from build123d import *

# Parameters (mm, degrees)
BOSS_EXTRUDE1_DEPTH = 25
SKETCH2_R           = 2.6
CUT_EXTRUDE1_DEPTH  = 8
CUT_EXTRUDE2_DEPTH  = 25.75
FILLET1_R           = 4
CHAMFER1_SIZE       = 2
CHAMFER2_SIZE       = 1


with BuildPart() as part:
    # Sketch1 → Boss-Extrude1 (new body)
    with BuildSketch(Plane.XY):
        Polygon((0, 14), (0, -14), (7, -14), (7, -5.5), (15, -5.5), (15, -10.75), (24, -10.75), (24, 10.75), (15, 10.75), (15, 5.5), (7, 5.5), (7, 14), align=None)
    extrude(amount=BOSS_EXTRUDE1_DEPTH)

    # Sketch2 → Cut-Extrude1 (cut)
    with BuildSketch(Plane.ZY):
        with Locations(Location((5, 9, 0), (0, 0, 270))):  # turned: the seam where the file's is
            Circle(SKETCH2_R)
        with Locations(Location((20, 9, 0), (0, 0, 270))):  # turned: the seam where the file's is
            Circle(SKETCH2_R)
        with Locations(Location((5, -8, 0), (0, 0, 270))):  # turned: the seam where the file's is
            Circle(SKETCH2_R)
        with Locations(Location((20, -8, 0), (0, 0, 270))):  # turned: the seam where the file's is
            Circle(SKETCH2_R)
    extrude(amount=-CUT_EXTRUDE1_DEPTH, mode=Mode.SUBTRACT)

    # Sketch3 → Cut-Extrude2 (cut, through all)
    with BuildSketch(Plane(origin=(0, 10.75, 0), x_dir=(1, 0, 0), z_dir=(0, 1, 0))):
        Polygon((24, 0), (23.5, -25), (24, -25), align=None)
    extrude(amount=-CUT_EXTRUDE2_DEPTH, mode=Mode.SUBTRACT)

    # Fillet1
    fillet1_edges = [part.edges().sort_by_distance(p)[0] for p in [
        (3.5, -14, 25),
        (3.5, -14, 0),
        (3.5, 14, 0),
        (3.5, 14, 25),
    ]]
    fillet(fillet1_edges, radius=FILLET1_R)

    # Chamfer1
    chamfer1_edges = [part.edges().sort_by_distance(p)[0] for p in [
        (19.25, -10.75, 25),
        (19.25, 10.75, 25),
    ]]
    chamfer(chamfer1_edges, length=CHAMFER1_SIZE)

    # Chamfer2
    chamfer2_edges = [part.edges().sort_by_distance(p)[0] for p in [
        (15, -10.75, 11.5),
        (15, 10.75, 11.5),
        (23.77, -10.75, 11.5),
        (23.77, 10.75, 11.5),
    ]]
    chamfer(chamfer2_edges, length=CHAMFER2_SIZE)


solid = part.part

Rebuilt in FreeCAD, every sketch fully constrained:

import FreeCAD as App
import Part
import Sketcher

V = App.Vector


def edges_at(feature, points):
    """Names of the edges that pass closest to the given points."""
    edges = feature.Shape.Edges
    near = lambda p: min(range(len(edges)), key=lambda i: edges[i].distToShape(Part.Vertex(*p))[0])
    return sorted({f"Edge{near(p) + 1}" for p in points})

doc = App.newDocument("Part")
body = doc.addObject("PartDesign::Body", "Body")

# Sketch on XY plane
sketch1 = body.newObject("Sketcher::SketchObject", "Sketch")
sketch1.AttachmentSupport = (doc.getObject("XY_Plane"), [""])
sketch1.MapMode = "FlatFace"
sketch1.addGeometry([
    Part.LineSegment(V(0, 14, 0), V(0, -14, 0)),  # 0
    Part.LineSegment(V(0, -14, 0), V(7, -14, 0)),  # 1
    Part.LineSegment(V(7, -14, 0), V(7, -6, 0)),  # 2
    Part.LineSegment(V(7, -6, 0), V(15, -6, 0)),  # 3
    Part.LineSegment(V(15, -6, 0), V(15, -11, 0)),  # 4
    Part.LineSegment(V(15, -11, 0), V(24, -11, 0)),  # 5
    Part.LineSegment(V(24, -11, 0), V(24, 11, 0)),  # 6
    Part.LineSegment(V(24, 11, 0), V(15, 11, 0)),  # 7
    Part.LineSegment(V(15, 11, 0), V(15, 6, 0)),  # 8
    Part.LineSegment(V(15, 6, 0), V(7, 6, 0)),  # 9
    Part.LineSegment(V(7, 6, 0), V(7, 14, 0)),  # 10
    Part.LineSegment(V(7, 14, 0), V(0, 14, 0)),  # 11
], False)
sketch1.addConstraint([
    Sketcher.Constraint("Coincident", 0, 2, 1, 1),
    Sketcher.Constraint("Coincident", 1, 2, 2, 1),
    Sketcher.Constraint("Coincident", 2, 2, 3, 1),
    Sketcher.Constraint("Coincident", 3, 2, 4, 1),
    Sketcher.Constraint("Coincident", 4, 2, 5, 1),
    Sketcher.Constraint("Coincident", 5, 2, 6, 1),
    Sketcher.Constraint("Coincident", 6, 2, 7, 1),
    Sketcher.Constraint("Coincident", 7, 2, 8, 1),
    Sketcher.Constraint("Coincident", 8, 2, 9, 1),
    Sketcher.Constraint("Coincident", 9, 2, 10, 1),
    Sketcher.Constraint("Coincident", 10, 2, 11, 1),
    Sketcher.Constraint("Coincident", 11, 2, 0, 1),
    Sketcher.Constraint("Vertical", 0),
    Sketcher.Constraint("Horizontal", 1),
    Sketcher.Constraint("Vertical", 2),
    Sketcher.Constraint("Horizontal", 3),
    Sketcher.Constraint("Vertical", 4),
    Sketcher.Constraint("Horizontal", 5),
    Sketcher.Constraint("Vertical", 6),
    Sketcher.Constraint("Horizontal", 7),
    Sketcher.Constraint("Vertical", 8),
    Sketcher.Constraint("Horizontal", 9),
    Sketcher.Constraint("Vertical", 10),
    Sketcher.Constraint("Horizontal", 11),
    Sketcher.Constraint("Symmetric", 0, 2, 11, 2, -1, 1),
    Sketcher.Constraint("Symmetric", 4, 2, 7, 2, -1),
    Sketcher.Constraint("Symmetric", 2, 2, 9, 2, -1),
    Sketcher.Constraint("DistanceX", 1, 1, 1, 2, 7.0),
    Sketcher.Constraint("DistanceX", 3, 1, 3, 2, 8.0),
    Sketcher.Constraint("DistanceX", 5, 1, 5, 2, 9.0),
    Sketcher.Constraint("DistanceY", 0, 2, 0, 1, 28.0),
    Sketcher.Constraint("DistanceY", 2, 1, 2, 2, 8.5),
    Sketcher.Constraint("DistanceY", 6, 1, 6, 2, 21.5),
])
pad1 = body.newObject("PartDesign::Pad", "Pad")
pad1.Profile = sketch1
pad1.Length = 25

# Sketch on YZ plane
sketch2 = body.newObject("Sketcher::SketchObject", "Sketch001")
sketch2.AttachmentSupport = (doc.getObject("YZ_Plane"), [""])
sketch2.MapMode = "FlatFace"
sketch2.addGeometry([
    Part.Circle(V(9, 5, 0), V(0, 0, 1), 2.6),
    Part.Circle(V(9, 20, 0), V(0, 0, 1), 2.6),
    Part.Circle(V(-8, 5, 0), V(0, 0, 1), 2.6),
    Part.Circle(V(-8, 20, 0), V(0, 0, 1), 2.6),
], False)
sketch2.addConstraint([
    Sketcher.Constraint("Equal", 0, 1),
    Sketcher.Constraint("Equal", 1, 2),
    Sketcher.Constraint("Equal", 2, 3),
    Sketcher.Constraint("Horizontal", 0, 3, 2, 3),
    Sketcher.Constraint("Horizontal", 1, 3, 3, 3),
    Sketcher.Constraint("Vertical", 0, 3, 1, 3),
    Sketcher.Constraint("Vertical", 2, 3, 3, 3),
    Sketcher.Constraint("Diameter", 0, 5.2),
    Sketcher.Constraint("DistanceX", -1, 1, 0, 3, 9.0),
    Sketcher.Constraint("DistanceY", -1, 1, 0, 3, 5.0),
    Sketcher.Constraint("DistanceY", -1, 1, 1, 3, 20.0),
    Sketcher.Constraint("DistanceX", 2, 3, -1, 1, 8.0),
])
pocket1 = body.newObject("PartDesign::Pocket", "Pocket")
pocket1.Profile = sketch2
pocket1.Length = 8
pocket1.Reversed = True

# Sketch on XZ plane
sketch3 = body.newObject("Sketcher::SketchObject", "Sketch002")
sketch3.AttachmentSupport = (doc.getObject("XZ_Plane"), [""])
sketch3.MapMode = "FlatFace"
sketch3.AttachmentOffset = App.Placement(V(0, 0, -10.75), App.Rotation())
sketch3.addGeometry([
    Part.LineSegment(V(24, 0, 0), V(23.5, 25, 0)),
    Part.LineSegment(V(23.5, 25, 0), V(24, 25, 0)),
    Part.LineSegment(V(24, 25, 0), V(24, 0, 0)),
], False)
sketch3.addConstraint([
    Sketcher.Constraint("Coincident", 0, 2, 1, 1),
    Sketcher.Constraint("Coincident", 1, 2, 2, 1),
    Sketcher.Constraint("Coincident", 2, 2, 0, 1),
    Sketcher.Constraint("Horizontal", 1),
    Sketcher.Constraint("Vertical", 2),
    Sketcher.Constraint("PointOnObject", 2, 2, -1),
    Sketcher.Constraint("DistanceY", 2, 2, 2, 1, 25.0),
    Sketcher.Constraint("DistanceX", 1, 1, 1, 2, 0.5),
    Sketcher.Constraint("DistanceX", -1, 1, 1, 2, 24.0),
])
pocket2 = body.newObject("PartDesign::Pocket", "Pocket001")
pocket2.Profile = sketch3
pocket2.Type = "ThroughAll"
pocket2.Reversed = True
doc.recompute()

fillet = body.newObject("PartDesign::Fillet", "Fillet")
fillet.Base = (pocket2, edges_at(pocket2, [
    (3.5, -14, 25),
    (3.5, -14, 0),
    (3.5, 14, 0),
    (3.5, 14, 25),
]))
fillet.Radius = 4
doc.recompute()

chamfer = body.newObject("PartDesign::Chamfer", "Chamfer")
chamfer.Base = (fillet, edges_at(fillet, [(19.25, -10.75, 25), (19.25, 10.75, 25)]))
chamfer.Size = 2
doc.recompute()

chamfer2 = body.newObject("PartDesign::Chamfer", "Chamfer001")
chamfer2.Base = (chamfer, edges_at(chamfer, [
    (15, -10.75, 11.5),
    (15, 10.75, 11.5),
    (23.77, -10.75, 11.5),
    (23.77, 10.75, 11.5),
]))
chamfer2.Size = 1

doc.recompute()
